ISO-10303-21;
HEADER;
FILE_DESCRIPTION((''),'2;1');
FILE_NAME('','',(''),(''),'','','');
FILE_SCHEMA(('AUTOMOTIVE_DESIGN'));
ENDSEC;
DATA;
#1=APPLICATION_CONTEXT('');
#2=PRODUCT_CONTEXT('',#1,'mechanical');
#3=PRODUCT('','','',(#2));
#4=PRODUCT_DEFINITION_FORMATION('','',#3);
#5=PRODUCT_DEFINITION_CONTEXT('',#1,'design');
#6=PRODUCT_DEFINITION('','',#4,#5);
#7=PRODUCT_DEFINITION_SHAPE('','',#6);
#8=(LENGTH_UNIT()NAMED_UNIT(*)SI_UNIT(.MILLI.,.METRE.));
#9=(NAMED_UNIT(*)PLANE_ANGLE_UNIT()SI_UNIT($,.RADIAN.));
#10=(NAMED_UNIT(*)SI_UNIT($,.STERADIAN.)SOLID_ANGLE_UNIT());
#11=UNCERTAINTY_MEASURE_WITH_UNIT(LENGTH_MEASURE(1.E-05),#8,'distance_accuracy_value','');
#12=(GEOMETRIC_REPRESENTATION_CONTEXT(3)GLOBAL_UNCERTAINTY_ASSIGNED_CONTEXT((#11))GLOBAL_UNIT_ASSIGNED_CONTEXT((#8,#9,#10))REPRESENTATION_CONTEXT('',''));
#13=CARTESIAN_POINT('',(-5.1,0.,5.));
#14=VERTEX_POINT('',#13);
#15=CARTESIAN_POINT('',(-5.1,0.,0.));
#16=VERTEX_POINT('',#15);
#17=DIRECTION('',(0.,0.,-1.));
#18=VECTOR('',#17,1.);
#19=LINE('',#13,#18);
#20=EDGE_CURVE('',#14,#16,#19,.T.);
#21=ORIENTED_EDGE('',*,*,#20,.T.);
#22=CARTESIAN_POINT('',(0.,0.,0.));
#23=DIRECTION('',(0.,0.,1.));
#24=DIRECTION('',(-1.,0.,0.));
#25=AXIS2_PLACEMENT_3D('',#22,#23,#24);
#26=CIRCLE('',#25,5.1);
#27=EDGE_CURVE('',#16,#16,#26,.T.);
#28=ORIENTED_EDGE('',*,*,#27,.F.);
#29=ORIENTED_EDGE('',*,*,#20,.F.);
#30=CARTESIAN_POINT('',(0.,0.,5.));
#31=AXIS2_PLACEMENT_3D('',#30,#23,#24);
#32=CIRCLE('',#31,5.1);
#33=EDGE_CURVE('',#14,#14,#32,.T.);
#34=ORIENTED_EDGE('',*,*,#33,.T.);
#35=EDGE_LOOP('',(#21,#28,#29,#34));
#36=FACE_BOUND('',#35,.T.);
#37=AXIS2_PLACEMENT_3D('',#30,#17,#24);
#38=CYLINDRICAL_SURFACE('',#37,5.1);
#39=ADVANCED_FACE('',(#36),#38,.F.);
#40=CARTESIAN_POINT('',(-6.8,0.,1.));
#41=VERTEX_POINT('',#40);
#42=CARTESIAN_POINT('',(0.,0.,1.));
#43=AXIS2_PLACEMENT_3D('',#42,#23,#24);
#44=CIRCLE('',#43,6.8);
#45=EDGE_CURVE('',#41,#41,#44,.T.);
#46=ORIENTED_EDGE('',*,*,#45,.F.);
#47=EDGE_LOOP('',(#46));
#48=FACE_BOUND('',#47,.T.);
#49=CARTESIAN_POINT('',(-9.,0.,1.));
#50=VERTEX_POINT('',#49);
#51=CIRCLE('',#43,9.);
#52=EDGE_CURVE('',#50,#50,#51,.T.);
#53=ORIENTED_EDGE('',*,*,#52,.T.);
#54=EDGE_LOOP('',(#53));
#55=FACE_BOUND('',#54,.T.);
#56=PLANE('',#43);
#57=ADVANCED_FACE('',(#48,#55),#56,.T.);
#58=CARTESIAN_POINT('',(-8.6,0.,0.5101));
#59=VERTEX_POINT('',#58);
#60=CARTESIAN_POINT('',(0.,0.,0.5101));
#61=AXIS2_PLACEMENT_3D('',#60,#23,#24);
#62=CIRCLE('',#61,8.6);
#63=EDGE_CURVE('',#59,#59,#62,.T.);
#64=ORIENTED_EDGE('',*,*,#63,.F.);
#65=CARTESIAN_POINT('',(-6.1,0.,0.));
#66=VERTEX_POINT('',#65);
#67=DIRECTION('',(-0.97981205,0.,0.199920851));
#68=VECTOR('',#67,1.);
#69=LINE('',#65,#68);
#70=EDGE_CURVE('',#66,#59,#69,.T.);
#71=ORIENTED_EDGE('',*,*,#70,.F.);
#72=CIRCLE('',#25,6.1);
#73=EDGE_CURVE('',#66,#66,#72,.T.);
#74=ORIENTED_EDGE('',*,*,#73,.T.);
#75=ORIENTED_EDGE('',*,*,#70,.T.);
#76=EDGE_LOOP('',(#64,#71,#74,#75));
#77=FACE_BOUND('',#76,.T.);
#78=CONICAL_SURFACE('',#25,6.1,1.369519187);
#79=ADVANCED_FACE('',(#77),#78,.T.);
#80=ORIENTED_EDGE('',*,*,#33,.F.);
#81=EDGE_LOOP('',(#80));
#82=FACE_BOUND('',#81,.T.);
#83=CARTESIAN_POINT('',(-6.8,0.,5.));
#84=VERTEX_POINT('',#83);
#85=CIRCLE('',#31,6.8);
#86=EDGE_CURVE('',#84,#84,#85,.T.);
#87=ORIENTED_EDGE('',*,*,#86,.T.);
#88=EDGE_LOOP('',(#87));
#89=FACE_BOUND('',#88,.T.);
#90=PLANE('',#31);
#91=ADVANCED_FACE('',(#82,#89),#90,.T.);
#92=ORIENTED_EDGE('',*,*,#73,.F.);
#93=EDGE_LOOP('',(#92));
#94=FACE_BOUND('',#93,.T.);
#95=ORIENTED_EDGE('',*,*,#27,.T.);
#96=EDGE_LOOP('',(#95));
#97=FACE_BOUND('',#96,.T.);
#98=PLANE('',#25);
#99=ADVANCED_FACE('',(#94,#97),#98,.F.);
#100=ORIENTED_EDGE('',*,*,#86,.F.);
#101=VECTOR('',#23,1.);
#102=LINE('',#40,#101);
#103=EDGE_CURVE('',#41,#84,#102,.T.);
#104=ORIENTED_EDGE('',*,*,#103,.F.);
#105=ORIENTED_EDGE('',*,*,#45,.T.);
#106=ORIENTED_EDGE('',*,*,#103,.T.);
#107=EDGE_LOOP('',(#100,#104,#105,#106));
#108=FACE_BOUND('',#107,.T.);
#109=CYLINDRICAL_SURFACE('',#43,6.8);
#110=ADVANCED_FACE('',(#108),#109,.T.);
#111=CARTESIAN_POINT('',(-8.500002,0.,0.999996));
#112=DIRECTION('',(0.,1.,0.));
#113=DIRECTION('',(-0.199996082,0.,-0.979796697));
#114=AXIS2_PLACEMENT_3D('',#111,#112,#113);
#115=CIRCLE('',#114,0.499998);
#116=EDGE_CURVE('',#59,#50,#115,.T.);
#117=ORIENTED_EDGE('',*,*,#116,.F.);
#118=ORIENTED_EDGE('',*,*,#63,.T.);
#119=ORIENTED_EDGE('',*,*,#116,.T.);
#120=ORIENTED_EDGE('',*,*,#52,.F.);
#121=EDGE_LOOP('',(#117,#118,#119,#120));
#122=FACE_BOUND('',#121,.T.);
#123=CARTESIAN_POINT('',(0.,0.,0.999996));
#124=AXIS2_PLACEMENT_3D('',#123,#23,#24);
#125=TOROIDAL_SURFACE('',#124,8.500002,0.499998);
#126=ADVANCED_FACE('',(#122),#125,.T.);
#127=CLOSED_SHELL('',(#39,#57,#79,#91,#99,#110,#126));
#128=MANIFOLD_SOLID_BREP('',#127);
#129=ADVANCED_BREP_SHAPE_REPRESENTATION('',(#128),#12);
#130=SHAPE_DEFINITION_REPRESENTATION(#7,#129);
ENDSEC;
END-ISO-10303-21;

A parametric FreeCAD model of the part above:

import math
import FreeCAD as App
import Part
import Sketcher
Q = App.Units.Quantity

doc = App.newDocument("Part")
params = doc.addObject("Spreadsheet::Sheet", "Params")
for row, (alias, value) in enumerate([
    ("sketch1_radius", "0.5 mm"),
    ("sketch1_width", "1 mm"),
    ("sketch1_height", "4 mm"),
    ("revolution_angle", "360 deg"),
], start=1):
    params.set(f"A{row}", alias)
    params.set(f"B{row}", "=" + value)
    params.setAlias(f"B{row}", alias)

body = doc.addObject("PartDesign::Body", "Body")

sketch1 = doc.addObject("Sketcher::SketchObject", "Sketch")
body.addObject(sketch1)
sketch1.AttachmentSupport = (doc.XZ_Plane, [""])
sketch1.MapMode = "FlatFace"
sketch1.addGeometry([
    Part.LineSegment(App.Vector(-5.1, 0, 0), App.Vector(-6.1, 0, 0)),
    Part.LineSegment(App.Vector(-6.1, 0, 0), App.Vector(-8.6, 0.5, 0)),
    Part.ArcOfCircle(Part.Circle(App.Vector(-8.5, 1, 0), App.Vector(0, 0, 1), 0.5), math.radians(180), math.radians(258)),
    Part.LineSegment(App.Vector(-9, 1, 0), App.Vector(-6.8, 1, 0)),
    Part.LineSegment(App.Vector(-6.8, 1, 0), App.Vector(-6.8, 5, 0)),
    Part.LineSegment(App.Vector(-6.8, 5, 0), App.Vector(-5.1, 5, 0)),
    Part.LineSegment(App.Vector(-5.1, 5, 0), App.Vector(-5.1, 0, 0)),
], False)
sketch1.addConstraint([
    Sketcher.Constraint("Coincident", 0, 2, 1, 1),
    Sketcher.Constraint("Tangent", 1, 2, 2, 2),
    Sketcher.Constraint("Coincident", 2, 1, 3, 1),
    Sketcher.Constraint("Coincident", 3, 2, 4, 1),
    Sketcher.Constraint("Coincident", 4, 2, 5, 1),
    Sketcher.Constraint("Coincident", 5, 2, 6, 1),
    Sketcher.Constraint("Coincident", 6, 2, 0, 1),
    Sketcher.Constraint("Horizontal", 0),
    Sketcher.Constraint("Horizontal", 3),
    Sketcher.Constraint("Vertical", 4),
    Sketcher.Constraint("Horizontal", 5),
    Sketcher.Constraint("Vertical", 6),
    Sketcher.Constraint("PointOnObject", 0, 2, -1),
    Sketcher.Constraint("Radius", 2, Q("0.5 mm")),
    Sketcher.Constraint("DistanceX", 0, 2, 0, 1, Q("1 mm")),
    Sketcher.Constraint("DistanceY", 4, 1, 4, 2, Q("4 mm")),
    Sketcher.Constraint("DistanceY", -1, 1, 2, 3, Q("1 mm")),
    Sketcher.Constraint("DistanceX", 2, 1, -1, 1, Q("9 mm")),
    Sketcher.Constraint("DistanceY", -1, 1, 2, 1, Q("1 mm")),
    Sketcher.Constraint("DistanceX", 3, 2, -1, 1, Q("6.8 mm")),
    Sketcher.Constraint("DistanceX", 5, 2, -1, 1, Q("5.1 mm")),
])
sketch1.setExpression("Constraints[13]", "Params.sketch1_radius")
sketch1.setExpression("Constraints[14]", "Params.sketch1_width")
sketch1.setExpression("Constraints[15]", "Params.sketch1_height")
revolution = doc.addObject("PartDesign::Revolution", "Revolution")
body.addObject(revolution)
revolution.Profile = sketch1
revolution.ReferenceAxis = (sketch1, ["V_Axis"])
revolution.setExpression("Angle", "Params.revolution_angle")

doc.recompute()
